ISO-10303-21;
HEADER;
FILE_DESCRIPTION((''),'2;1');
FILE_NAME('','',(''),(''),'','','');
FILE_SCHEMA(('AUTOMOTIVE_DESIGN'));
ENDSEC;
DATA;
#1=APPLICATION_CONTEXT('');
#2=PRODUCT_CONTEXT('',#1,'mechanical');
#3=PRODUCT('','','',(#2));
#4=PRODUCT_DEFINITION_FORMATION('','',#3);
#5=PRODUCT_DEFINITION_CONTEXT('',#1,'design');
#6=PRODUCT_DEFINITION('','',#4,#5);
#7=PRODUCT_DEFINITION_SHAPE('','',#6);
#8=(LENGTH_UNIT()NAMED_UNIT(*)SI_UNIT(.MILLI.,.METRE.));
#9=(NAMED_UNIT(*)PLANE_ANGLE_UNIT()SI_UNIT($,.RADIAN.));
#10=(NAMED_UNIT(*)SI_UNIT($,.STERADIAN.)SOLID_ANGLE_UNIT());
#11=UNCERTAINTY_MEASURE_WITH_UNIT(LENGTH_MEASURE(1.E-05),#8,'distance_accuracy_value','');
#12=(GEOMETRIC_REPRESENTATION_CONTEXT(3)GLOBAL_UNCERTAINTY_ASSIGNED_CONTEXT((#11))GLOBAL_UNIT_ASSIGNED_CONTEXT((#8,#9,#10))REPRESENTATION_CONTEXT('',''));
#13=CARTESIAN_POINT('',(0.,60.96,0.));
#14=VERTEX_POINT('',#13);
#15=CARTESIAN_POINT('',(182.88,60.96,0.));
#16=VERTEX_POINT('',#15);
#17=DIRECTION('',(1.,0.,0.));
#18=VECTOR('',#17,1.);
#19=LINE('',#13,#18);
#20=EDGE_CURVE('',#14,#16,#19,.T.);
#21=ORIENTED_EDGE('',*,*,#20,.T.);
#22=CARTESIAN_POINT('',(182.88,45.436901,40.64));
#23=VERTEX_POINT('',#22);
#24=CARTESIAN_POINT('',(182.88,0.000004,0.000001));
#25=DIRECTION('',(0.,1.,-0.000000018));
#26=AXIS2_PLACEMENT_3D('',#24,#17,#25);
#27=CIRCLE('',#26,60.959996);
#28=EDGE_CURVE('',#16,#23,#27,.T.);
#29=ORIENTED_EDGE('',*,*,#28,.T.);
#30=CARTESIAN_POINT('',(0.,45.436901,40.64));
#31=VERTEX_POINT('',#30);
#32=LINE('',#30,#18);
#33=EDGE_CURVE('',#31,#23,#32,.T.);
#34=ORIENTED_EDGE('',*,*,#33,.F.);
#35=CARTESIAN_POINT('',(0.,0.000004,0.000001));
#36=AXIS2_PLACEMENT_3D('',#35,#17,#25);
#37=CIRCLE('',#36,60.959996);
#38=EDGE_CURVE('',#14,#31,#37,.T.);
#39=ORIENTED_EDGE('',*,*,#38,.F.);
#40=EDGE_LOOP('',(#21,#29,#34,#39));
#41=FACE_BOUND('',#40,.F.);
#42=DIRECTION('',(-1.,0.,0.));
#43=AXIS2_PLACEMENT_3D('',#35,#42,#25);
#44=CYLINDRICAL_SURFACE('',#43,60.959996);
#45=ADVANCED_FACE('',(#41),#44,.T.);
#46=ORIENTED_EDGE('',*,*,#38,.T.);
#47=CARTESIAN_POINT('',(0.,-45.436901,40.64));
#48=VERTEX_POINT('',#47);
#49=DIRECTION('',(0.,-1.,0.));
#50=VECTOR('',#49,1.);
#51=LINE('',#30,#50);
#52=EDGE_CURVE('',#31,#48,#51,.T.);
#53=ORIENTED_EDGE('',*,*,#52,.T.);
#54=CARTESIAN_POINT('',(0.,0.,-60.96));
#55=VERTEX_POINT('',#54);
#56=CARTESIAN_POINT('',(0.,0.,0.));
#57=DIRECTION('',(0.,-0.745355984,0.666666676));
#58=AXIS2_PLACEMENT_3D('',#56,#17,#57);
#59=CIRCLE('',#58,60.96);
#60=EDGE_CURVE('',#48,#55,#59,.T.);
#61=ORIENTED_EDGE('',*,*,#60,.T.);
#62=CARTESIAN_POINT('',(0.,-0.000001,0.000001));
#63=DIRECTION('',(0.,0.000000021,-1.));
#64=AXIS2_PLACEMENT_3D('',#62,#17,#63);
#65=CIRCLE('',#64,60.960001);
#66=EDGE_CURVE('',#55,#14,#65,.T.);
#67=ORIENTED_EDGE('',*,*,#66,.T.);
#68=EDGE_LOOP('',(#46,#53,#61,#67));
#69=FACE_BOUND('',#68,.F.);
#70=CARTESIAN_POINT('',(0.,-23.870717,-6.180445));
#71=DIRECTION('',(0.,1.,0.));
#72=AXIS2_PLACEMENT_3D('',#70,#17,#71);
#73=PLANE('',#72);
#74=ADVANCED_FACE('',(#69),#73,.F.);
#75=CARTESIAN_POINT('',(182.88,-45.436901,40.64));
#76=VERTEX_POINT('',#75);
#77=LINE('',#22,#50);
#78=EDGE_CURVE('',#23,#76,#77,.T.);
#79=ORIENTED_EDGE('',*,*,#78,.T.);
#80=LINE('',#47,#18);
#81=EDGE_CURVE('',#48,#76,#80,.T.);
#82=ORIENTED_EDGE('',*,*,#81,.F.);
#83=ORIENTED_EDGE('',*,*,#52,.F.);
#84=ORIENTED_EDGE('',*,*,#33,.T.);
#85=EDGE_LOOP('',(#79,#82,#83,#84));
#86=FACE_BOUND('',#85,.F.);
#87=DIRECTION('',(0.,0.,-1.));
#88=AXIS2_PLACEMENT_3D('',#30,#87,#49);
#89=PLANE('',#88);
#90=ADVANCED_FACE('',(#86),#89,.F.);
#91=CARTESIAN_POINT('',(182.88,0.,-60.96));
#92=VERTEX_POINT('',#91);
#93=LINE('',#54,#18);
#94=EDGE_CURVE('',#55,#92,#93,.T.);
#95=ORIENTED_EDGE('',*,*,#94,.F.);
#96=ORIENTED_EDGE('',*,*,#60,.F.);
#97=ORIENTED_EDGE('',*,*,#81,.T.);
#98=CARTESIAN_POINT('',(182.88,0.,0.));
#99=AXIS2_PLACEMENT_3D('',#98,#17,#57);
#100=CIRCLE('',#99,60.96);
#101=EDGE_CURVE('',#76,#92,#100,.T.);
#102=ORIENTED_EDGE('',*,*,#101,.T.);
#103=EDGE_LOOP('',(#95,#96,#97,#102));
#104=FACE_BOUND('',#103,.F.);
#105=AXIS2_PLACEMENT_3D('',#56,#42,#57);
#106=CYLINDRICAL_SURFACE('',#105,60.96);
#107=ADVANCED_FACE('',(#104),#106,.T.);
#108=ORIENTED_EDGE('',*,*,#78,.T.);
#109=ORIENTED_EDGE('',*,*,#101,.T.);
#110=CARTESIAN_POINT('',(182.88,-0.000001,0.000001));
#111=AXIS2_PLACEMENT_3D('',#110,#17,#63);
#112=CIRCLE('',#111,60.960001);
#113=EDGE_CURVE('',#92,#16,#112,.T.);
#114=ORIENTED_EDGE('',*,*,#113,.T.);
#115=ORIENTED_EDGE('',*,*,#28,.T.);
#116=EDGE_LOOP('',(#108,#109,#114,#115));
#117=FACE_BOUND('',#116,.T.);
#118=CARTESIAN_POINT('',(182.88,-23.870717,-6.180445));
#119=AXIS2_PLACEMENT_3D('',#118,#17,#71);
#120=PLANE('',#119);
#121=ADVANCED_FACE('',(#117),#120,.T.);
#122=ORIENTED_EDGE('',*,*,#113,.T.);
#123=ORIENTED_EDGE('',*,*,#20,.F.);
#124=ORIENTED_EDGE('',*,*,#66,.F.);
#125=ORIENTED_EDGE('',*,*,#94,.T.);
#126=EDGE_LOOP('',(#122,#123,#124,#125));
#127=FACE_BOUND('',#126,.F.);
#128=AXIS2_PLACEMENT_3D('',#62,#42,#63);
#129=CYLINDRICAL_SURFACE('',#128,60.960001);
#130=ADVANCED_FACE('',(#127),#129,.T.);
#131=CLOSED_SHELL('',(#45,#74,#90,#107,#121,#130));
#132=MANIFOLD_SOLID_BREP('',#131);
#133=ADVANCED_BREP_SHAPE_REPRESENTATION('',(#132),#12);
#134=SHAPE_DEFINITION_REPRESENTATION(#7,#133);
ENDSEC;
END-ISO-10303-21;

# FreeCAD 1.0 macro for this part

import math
import FreeCAD as App
import Part
import Sketcher
Q = App.Units.Quantity

doc = App.newDocument("Part")
body = doc.addObject("PartDesign::Body", "Body")

sketch1 = body.newObject("Sketcher::SketchObject", "Sketch")
sketch1.AttachmentSupport = (doc.getObject("YZ_Plane"), [""])
sketch1.MapMode = "FlatFace"
sketch1.addGeometry(Part.ArcOfCircle(Part.Circle(App.Vector(0, 0, 0), App.Vector(0, 0, 1), 61), math.radians(138), math.radians(270)), False)
sketch1.addGeometry(Part.ArcOfCircle(Part.Circle(App.Vector(0, 0, 0), App.Vector(0, 0, 1), 61), math.radians(-90), math.radians(0)), False)
sketch1.addGeometry(Part.ArcOfCircle(Part.Circle(App.Vector(0, 0, 0), App.Vector(0, 0, 1), 61), math.radians(0), math.radians(42)), False)
sketch1.addGeometry(Part.LineSegment(App.Vector(45, 41, 0), App.Vector(-45, 41, 0)), False)
sketch1.addConstraint(Sketcher.Constraint("Tangent", 0, 2, 1, 1))
sketch1.addConstraint(Sketcher.Constraint("Tangent", 1, 2, 2, 1))
sketch1.addConstraint(Sketcher.Constraint("Coincident", 2, 2, 3, 1))
sketch1.addConstraint(Sketcher.Constraint("Coincident", 3, 2, 0, 1))
sketch1.addConstraint(Sketcher.Constraint("Horizontal", 3))
sketch1.addConstraint(Sketcher.Constraint("Coincident", 0, 3, -1, 1))
sketch1.addConstraint(Sketcher.Constraint("Coincident", 2, 3, -1, 1))
sketch1.addConstraint(Sketcher.Constraint("PointOnObject", 0, 2, -2))
sketch1.addConstraint(Sketcher.Constraint("PointOnObject", 1, 2, -1))
sketch1.addConstraint(Sketcher.Constraint("Radius", 0, Q("2.4 in")))
sketch1.addConstraint(Sketcher.Constraint("DistanceY", 0, 2, 2, 2, Q("4 in")))
pad1 = body.newObject("PartDesign::Pad", "Pad")
pad1.Profile = sketch1
pad1.Length = Q("7.2 in")

doc.recompute()
